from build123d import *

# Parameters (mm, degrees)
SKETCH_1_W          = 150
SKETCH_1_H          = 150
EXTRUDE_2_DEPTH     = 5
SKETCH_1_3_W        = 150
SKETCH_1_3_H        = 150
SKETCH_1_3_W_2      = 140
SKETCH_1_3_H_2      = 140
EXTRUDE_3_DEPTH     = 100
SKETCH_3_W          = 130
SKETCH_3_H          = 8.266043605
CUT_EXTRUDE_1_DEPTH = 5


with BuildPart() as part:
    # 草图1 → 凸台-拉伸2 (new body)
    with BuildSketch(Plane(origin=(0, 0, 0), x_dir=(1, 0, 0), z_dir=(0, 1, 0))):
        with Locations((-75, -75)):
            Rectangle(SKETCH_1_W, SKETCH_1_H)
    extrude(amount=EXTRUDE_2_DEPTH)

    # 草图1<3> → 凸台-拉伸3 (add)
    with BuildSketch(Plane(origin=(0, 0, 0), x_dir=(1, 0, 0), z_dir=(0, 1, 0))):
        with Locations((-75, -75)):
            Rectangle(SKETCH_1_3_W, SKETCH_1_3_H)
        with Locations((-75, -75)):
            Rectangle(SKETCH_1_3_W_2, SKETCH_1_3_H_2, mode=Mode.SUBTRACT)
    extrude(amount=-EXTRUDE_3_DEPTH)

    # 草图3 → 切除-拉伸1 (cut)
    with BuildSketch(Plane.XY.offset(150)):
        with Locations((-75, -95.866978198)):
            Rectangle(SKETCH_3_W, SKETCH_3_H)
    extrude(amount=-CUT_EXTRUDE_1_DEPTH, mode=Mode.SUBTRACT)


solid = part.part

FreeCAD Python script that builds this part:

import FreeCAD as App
import Part
import Sketcher

doc = App.newDocument("Part")
params = doc.addObject("Spreadsheet::Sheet", "Params")
for row, (alias, value) in enumerate([
    ("sketch1_width", "150 mm"),
    ("pad1_length", "5 mm"),
    ("sketch2_width", "150 mm"),
    ("sketch2_width2", "140 mm"),
    ("pad2_length", "100 mm"),
    ("sketch3_width", "130 mm"),
    ("pocket1_length", "5 mm"),
], start=1):
    params.set(f"A{row}", alias)
    params.set(f"B{row}", "=" + value)
    params.setAlias(f"B{row}", alias)

body = doc.addObject("PartDesign::Body", "Body")

sketch1 = body.newObject("Sketcher::SketchObject", "Sketch")
sketch1.AttachmentSupport = (doc.getObject("XZ_Plane"), [""])
sketch1.MapMode = "FlatFace"
sketch1.addGeometry(Part.LineSegment(App.Vector(-150, 0, 0), App.Vector(-150, 150, 0)), False)
sketch1.addGeometry(Part.LineSegment(App.Vector(-150, 150, 0), App.Vector(0, 150, 0)), False)
sketch1.addGeometry(Part.LineSegment(App.Vector(0, 150, 0), App.Vector(0, 0, 0)), False)
sketch1.addGeometry(Part.LineSegment(App.Vector(0, 0, 0), App.Vector(-150, 0, 0)), False)
sketch1.addConstraint(Sketcher.Constraint("Coincident", 0, 2, 1, 1))
sketch1.addConstraint(Sketcher.Constraint("Coincident", 1, 2, 2, 1))
sketch1.addConstraint(Sketcher.Constraint("Coincident", 2, 2, 3, 1))
sketch1.addConstraint(Sketcher.Constraint("Coincident", 3, 2, 0, 1))
sketch1.addConstraint(Sketcher.Constraint("Vertical", 0))
sketch1.addConstraint(Sketcher.Constraint("Horizontal", 1))
sketch1.addConstraint(Sketcher.Constraint("Vertical", 2))
sketch1.addConstraint(Sketcher.Constraint("Horizontal", 3))
sketch1.addConstraint(Sketcher.Constraint("Coincident", 2, 2, -1, 1))
sketch1.addConstraint(Sketcher.Constraint("Equal", 3, 0))
sketch1.addConstraint(Sketcher.Constraint("DistanceX", 1, 1, 1, 2, 150.0))
sketch1.setExpression("Constraints[10]", "Params.sketch1_width")
pad1 = body.newObject("PartDesign::Pad", "Pad")
pad1.Profile = sketch1
pad1.setExpression("Length", "Params.pad1_length")
pad1.Reversed = True

sketch2 = body.newObject("Sketcher::SketchObject", "Sketch001")
sketch2.AttachmentSupport = (doc.getObject("XZ_Plane"), [""])
sketch2.MapMode = "FlatFace"
sketch2.addGeometry(Part.LineSegment(App.Vector(-150, 0, 0), App.Vector(-150, 150, 0)), False)
sketch2.addGeometry(Part.LineSegment(App.Vector(-150, 150, 0), App.Vector(0, 150, 0)), False)
sketch2.addGeometry(Part.LineSegment(App.Vector(0, 150, 0), App.Vector(0, 0, 0)), False)
sketch2.addGeometry(Part.LineSegment(App.Vector(0, 0, 0), App.Vector(-150, 0, 0)), False)
sketch2.addGeometry(Part.LineSegment(App.Vector(-5, 145, 0), App.Vector(-145, 145, 0)), False)
sketch2.addGeometry(Part.LineSegment(App.Vector(-145, 145, 0), App.Vector(-145, 5, 0)), False)
sketch2.addGeometry(Part.LineSegment(App.Vector(-145, 5, 0), App.Vector(-5, 5, 0)), False)
sketch2.addGeometry(Part.LineSegment(App.Vector(-5, 5, 0), App.Vector(-5, 145, 0)), False)
sketch2.addConstraint(Sketcher.Constraint("Coincident", 0, 2, 1, 1))
sketch2.addConstraint(Sketcher.Constraint("Coincident", 1, 2, 2, 1))
sketch2.addConstraint(Sketcher.Constraint("Coincident", 2, 2, 3, 1))
sketch2.addConstraint(Sketcher.Constraint("Coincident", 3, 2, 0, 1))
sketch2.addConstraint(Sketcher.Constraint("Coincident", 4, 2, 5, 1))
sketch2.addConstraint(Sketcher.Constraint("Coincident", 5, 2, 6, 1))
sketch2.addConstraint(Sketcher.Constraint("Coincident", 6, 2, 7, 1))
sketch2.addConstraint(Sketcher.Constraint("Coincident", 7, 2, 4, 1))
sketch2.addConstraint(Sketcher.Constraint("Vertical", 0))
sketch2.addConstraint(Sketcher.Constraint("Horizontal", 1))
sketch2.addConstraint(Sketcher.Constraint("Vertical", 2))
sketch2.addConstraint(Sketcher.Constraint("Horizontal", 3))
sketch2.addConstraint(Sketcher.Constraint("Horizontal", 4))
sketch2.addConstraint(Sketcher.Constraint("Vertical", 5))
sketch2.addConstraint(Sketcher.Constraint("Horizontal", 6))
sketch2.addConstraint(Sketcher.Constraint("Vertical", 7))
sketch2.addConstraint(Sketcher.Constraint("Coincident", 2, 2, -1, 1))
sketch2.addConstraint(Sketcher.Constraint("Equal", 3, 0))
sketch2.addConstraint(Sketcher.Constraint("Equal", 6, 5))
sketch2.addConstraint(Sketcher.Constraint("DistanceX", 1, 1, 1, 2, 150.0))
sketch2.addConstraint(Sketcher.Constraint("DistanceX", 4, 2, 4, 1, 140.0))
sketch2.addConstraint(Sketcher.Constraint("DistanceX", 4, 2, -1, 1, 145.0))
sketch2.addConstraint(Sketcher.Constraint("DistanceY", -1, 1, 4, 2, 145.0))
sketch2.setExpression("Constraints[19]", "Params.sketch2_width")
sketch2.setExpression("Constraints[20]", "Params.sketch2_width2")
pad2 = body.newObject("PartDesign::Pad", "Pad001")
pad2.Profile = sketch2
pad2.setExpression("Length", "Params.pad2_length")

sketch3 = body.newObject("Sketcher::SketchObject", "Sketch002")
sketch3.AttachmentSupport = (doc.getObject("XY_Plane"), [""])
sketch3.MapMode = "FlatFace"
sketch3.AttachmentOffset = App.Placement(App.Vector(0, 0, 150), App.Rotation())
sketch3.addGeometry(Part.LineSegment(App.Vector(-140, -92, 0), App.Vector(-140, -100, 0)), False)
sketch3.addGeometry(Part.LineSegment(App.Vector(-140, -100, 0), App.Vector(-10, -100, 0)), False)
sketch3.addGeometry(Part.LineSegment(App.Vector(-10, -100, 0), App.Vector(-10, -92, 0)), False)
sketch3.addGeometry(Part.LineSegment(App.Vector(-10, -92, 0), App.Vector(-140, -92, 0)), False)
sketch3.addConstraint(Sketcher.Constraint("Coincident", 0, 2, 1, 1))
sketch3.addConstraint(Sketcher.Constraint("Coincident", 1, 2, 2, 1))
sketch3.addConstraint(Sketcher.Constraint("Coincident", 2, 2, 3, 1))
sketch3.addConstraint(Sketcher.Constraint("Coincident", 3, 2, 0, 1))
sketch3.addConstraint(Sketcher.Constraint("Vertical", 0))
sketch3.addConstraint(Sketcher.Constraint("Horizontal", 1))
sketch3.addConstraint(Sketcher.Constraint("Vertical", 2))
sketch3.addConstraint(Sketcher.Constraint("Horizontal", 3))
sketch3.addConstraint(Sketcher.Constraint("DistanceX", 1, 1, 1, 2, 130.0))
sketch3.addConstraint(Sketcher.Constraint("DistanceX", 0, 2, -1, 1, 140.0))
sketch3.addConstraint(Sketcher.Constraint("DistanceY", 0, 2, -1, 1, 100.0))
sketch3.addConstraint(Sketcher.Constraint("DistanceY", 0, 2, 0, 1, 8.266044))
sketch3.setExpression("Constraints[8]", "Params.sketch3_width")
pocket1 = body.newObject("PartDesign::Pocket", "Pocket")
pocket1.Profile = sketch3
pocket1.setExpression("Length", "Params.pocket1_length")

doc.recompute()
